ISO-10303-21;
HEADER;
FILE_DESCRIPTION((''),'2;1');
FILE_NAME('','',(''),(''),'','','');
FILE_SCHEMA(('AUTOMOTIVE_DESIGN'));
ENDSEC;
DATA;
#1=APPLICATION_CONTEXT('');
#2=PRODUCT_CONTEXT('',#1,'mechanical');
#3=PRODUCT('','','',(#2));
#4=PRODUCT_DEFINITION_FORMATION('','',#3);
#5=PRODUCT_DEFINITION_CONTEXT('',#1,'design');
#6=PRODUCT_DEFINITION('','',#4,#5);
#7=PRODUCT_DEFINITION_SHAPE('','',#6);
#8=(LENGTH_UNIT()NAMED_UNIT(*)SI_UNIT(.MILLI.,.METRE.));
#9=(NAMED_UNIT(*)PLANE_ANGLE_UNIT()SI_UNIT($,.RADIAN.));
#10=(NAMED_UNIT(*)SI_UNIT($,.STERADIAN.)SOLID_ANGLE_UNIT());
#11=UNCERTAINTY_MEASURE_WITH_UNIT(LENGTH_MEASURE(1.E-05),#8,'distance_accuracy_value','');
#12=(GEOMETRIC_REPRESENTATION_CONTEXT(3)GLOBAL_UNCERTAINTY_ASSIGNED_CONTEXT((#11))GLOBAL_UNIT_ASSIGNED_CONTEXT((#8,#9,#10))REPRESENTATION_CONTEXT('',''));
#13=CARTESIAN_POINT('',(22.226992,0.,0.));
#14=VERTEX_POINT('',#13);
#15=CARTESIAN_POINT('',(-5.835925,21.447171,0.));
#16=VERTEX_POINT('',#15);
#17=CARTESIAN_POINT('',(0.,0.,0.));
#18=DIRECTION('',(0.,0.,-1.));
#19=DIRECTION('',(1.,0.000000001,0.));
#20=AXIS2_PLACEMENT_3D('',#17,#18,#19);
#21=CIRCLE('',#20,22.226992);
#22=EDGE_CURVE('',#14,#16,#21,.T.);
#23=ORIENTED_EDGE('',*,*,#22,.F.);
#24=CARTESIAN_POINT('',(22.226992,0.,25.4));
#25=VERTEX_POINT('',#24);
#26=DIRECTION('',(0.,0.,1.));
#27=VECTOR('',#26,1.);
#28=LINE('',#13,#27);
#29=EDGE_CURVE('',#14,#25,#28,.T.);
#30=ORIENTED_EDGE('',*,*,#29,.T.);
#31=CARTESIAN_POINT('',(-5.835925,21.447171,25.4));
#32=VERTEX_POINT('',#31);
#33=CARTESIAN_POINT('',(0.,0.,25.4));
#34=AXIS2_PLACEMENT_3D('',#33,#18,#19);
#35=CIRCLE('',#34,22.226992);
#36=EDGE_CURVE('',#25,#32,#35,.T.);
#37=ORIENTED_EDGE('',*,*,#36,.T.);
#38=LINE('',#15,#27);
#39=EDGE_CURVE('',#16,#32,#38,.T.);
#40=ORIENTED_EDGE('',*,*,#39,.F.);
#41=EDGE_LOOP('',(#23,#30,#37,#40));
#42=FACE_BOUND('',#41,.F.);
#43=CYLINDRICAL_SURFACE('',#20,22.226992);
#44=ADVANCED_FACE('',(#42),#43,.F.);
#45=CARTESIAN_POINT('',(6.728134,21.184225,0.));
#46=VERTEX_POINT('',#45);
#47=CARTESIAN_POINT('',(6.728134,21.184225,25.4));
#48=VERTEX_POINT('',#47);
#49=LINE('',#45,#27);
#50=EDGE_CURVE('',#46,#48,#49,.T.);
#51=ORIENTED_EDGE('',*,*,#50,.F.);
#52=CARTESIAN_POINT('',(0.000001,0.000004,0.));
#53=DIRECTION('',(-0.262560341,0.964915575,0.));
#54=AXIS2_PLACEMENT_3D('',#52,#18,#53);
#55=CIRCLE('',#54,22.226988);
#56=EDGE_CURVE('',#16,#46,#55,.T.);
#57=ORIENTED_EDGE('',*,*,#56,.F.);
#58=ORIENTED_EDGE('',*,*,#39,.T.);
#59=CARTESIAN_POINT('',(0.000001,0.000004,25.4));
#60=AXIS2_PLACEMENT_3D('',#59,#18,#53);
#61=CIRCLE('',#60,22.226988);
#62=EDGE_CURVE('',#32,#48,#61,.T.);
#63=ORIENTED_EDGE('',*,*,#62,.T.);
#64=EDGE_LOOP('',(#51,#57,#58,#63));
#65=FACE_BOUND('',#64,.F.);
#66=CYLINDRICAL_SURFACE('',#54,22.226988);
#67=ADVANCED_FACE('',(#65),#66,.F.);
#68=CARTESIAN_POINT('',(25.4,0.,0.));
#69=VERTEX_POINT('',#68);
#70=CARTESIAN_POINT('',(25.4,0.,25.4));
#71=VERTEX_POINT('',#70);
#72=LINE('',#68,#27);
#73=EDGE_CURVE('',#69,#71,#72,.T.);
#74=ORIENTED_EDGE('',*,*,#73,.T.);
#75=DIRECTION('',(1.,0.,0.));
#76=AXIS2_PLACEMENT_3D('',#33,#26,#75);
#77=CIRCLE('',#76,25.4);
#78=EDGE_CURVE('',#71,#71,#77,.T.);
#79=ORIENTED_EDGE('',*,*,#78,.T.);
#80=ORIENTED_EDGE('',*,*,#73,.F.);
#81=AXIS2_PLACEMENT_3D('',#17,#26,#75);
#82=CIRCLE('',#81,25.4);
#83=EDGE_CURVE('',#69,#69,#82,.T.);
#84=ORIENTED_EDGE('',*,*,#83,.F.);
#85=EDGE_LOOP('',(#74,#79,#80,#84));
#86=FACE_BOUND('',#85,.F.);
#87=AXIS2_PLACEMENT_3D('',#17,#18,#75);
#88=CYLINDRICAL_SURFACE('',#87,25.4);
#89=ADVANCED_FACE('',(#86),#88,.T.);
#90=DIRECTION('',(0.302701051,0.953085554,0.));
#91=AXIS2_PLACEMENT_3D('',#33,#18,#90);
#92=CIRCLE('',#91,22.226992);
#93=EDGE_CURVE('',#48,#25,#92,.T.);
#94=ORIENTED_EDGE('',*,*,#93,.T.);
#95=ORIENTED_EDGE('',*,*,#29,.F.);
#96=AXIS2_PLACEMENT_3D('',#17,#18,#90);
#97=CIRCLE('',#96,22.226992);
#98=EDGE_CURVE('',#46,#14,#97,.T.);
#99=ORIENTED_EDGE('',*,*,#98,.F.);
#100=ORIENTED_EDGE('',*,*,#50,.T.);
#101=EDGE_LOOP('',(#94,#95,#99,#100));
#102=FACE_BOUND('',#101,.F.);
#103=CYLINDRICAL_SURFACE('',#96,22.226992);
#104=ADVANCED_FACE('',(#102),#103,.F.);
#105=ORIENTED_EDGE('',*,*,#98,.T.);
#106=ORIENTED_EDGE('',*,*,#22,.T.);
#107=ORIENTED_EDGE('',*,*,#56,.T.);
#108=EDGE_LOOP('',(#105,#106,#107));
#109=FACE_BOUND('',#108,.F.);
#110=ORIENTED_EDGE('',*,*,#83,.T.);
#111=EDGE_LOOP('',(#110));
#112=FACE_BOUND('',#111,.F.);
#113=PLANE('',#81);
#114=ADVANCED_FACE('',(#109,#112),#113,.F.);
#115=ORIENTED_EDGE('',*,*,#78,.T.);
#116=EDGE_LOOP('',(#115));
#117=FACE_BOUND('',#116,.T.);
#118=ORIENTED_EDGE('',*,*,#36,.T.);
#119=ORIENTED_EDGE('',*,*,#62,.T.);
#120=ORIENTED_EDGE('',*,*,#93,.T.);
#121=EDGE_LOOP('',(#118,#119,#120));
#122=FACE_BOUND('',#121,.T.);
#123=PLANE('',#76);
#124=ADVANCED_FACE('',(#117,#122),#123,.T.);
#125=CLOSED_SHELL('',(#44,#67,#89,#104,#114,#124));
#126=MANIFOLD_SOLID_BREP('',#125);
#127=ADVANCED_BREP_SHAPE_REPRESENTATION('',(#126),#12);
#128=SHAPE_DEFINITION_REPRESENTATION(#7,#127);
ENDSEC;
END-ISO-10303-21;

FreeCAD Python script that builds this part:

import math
import FreeCAD as App
import Part
import Sketcher
Q = App.Units.Quantity

doc = App.newDocument("Part")
body = doc.addObject("PartDesign::Body", "Body")

sketch1 = body.newObject("Sketcher::SketchObject", "Sketch")
sketch1.AttachmentSupport = (doc.getObject("XY_Plane"), [""])
sketch1.MapMode = "FlatFace"
sketch1.addGeometry(Part.Circle(App.Vector(0, 0, 0), App.Vector(0, 0, 1), 25), False)
sketch1.addGeometry(Part.ArcOfCircle(Part.Circle(App.Vector(0, 0, 0), App.Vector(0, 0, 1), 22), math.radians(72), math.radians(105)), False)
sketch1.addGeometry(Part.ArcOfCircle(Part.Circle(App.Vector(0, 0, 0), App.Vector(0, 0, 1), 22), math.radians(0), math.radians(72)), False)
sketch1.addGeometry(Part.ArcOfCircle(Part.Circle(App.Vector(0, 0, 0), App.Vector(0, 0, 1), 22), math.radians(105), math.radians(360)), False)
sketch1.addConstraint(Sketcher.Constraint("Tangent", 1, 1, 2, 2))
sketch1.addConstraint(Sketcher.Constraint("Tangent", 2, 1, 3, 2))
sketch1.addConstraint(Sketcher.Constraint("Tangent", 3, 1, 1, 2))
sketch1.addConstraint(Sketcher.Constraint("Coincident", 0, 3, -1, 1))
sketch1.addConstraint(Sketcher.Constraint("Coincident", 1, 3, -1, 1))
sketch1.addConstraint(Sketcher.Constraint("PointOnObject", 2, 1, -1))
sketch1.addConstraint(Sketcher.Constraint("Diameter", 0, Q("2 in")))
sketch1.addConstraint(Sketcher.Constraint("Radius", 2, Q("22.226992 mm")))
sketch1.addConstraint(Sketcher.Constraint("DistanceY", -1, 1, 3, 1, Q("21.447171 mm")))
sketch1.addConstraint(Sketcher.Constraint("DistanceY", 1, 3, 1, 1, Q("21.184221 mm")))
pad1 = body.newObject("PartDesign::Pad", "Pad")
pad1.Profile = sketch1
pad1.Length = Q("1 in")

doc.recompute()
